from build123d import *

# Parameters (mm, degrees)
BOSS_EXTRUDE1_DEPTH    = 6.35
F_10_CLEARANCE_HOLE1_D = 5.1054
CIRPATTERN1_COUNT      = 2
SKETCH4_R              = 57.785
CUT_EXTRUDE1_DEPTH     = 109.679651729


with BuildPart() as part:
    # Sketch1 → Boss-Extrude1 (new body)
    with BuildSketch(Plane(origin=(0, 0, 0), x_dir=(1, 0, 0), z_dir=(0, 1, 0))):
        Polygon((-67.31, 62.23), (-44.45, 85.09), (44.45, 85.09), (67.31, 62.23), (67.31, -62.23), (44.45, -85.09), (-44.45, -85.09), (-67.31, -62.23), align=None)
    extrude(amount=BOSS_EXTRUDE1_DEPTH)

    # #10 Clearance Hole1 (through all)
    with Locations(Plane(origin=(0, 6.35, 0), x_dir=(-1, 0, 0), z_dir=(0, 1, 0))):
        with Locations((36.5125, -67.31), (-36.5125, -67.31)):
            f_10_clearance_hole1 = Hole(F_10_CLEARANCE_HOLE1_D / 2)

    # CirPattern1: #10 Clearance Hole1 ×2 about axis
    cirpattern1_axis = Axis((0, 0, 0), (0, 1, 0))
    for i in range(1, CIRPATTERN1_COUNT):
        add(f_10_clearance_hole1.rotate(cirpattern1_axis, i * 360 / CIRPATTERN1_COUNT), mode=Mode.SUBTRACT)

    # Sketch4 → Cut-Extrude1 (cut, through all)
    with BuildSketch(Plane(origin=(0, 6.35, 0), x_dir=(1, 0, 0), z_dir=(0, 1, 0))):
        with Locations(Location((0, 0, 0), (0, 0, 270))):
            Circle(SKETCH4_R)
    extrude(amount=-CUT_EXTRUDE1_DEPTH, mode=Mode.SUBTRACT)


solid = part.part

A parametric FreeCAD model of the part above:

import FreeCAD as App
import Part
import Sketcher
from FreeCAD import Vector
Q = App.Units.Quantity

doc = App.newDocument("Part")
body = doc.addObject("PartDesign::Body", "Body")

# Sketch on XZ plane
sketch1 = body.newObject("Sketcher::SketchObject", "Sketch")
sketch1.AttachmentSupport = (doc.getObject("XZ_Plane"), [""])
sketch1.MapMode = "FlatFace"
sketch1.addGeometry([
    Part.LineSegment(Vector(-44, -85, 0), Vector(-67, -62, 0)),  # 0
    Part.LineSegment(Vector(-67, -62, 0), Vector(-67, 62, 0)),  # 1
    Part.LineSegment(Vector(-67, 62, 0), Vector(-44, 85, 0)),  # 2
    Part.LineSegment(Vector(-44, 85, 0), Vector(44, 85, 0)),  # 3
    Part.LineSegment(Vector(44, 85, 0), Vector(67, 62, 0)),  # 4
    Part.LineSegment(Vector(67, 62, 0), Vector(67, -62, 0)),  # 5
    Part.LineSegment(Vector(67, -62, 0), Vector(44, -85, 0)),  # 6
    Part.LineSegment(Vector(44, -85, 0), Vector(-44, -85, 0)),  # 7
], False)
sketch1.addConstraint([
    Sketcher.Constraint("Coincident", 0, 2, 1, 1),
    Sketcher.Constraint("Coincident", 1, 2, 2, 1),
    Sketcher.Constraint("Coincident", 2, 2, 3, 1),
    Sketcher.Constraint("Coincident", 3, 2, 4, 1),
    Sketcher.Constraint("Coincident", 4, 2, 5, 1),
    Sketcher.Constraint("Coincident", 5, 2, 6, 1),
    Sketcher.Constraint("Coincident", 6, 2, 7, 1),
    Sketcher.Constraint("Coincident", 7, 2, 0, 1),
    Sketcher.Constraint("Vertical", 1),
    Sketcher.Constraint("Horizontal", 3),
    Sketcher.Constraint("Vertical", 5),
    Sketcher.Constraint("Horizontal", 7),
    Sketcher.Constraint("Symmetric", 0, 2, 4, 2, -1, 1),
    Sketcher.Constraint("Symmetric", 2, 2, 6, 2, -1, 1),
    Sketcher.Constraint("Perpendicular", 0, 2),
    Sketcher.Constraint("Perpendicular", 2, 4),
    Sketcher.Constraint("Perpendicular", 4, 6),
    Sketcher.Constraint("Horizontal", 1, 2, 4, 2),
    Sketcher.Constraint("Vertical", 3, 2, 6, 2),
    Sketcher.Constraint("DistanceX", 3, 1, 3, 2, Q("3.5 in")),
    Sketcher.Constraint("DistanceY", 1, 1, 1, 2, Q("4.9 in")),
    Sketcher.Constraint("DistanceX", 1, 2, 2, 2, Q("0.9 in")),
])
pad1 = body.newObject("PartDesign::Pad", "Pad")
pad1.Profile = sketch1
pad1.Length = Q("0.25 in")
pad1.Reversed = True

# Sketch on XZ plane
sketch2 = body.newObject("Sketcher::SketchObject", "Sketch001")
sketch2.AttachmentSupport = (doc.getObject("XZ_Plane"), [""])
sketch2.MapMode = "FlatFace"
sketch2.AttachmentOffset = App.Placement(Vector(0, 0, -0.25 * 25.4), App.Rotation())
sketch2.addGeometry([
    Part.Circle(Vector(-36.5, -67.3, 0), Vector(0, 0, 1), 2.6),
    Part.Circle(Vector(36.5, -67.3, 0), Vector(0, 0, 1), 2.6),
], False)
sketch2.addConstraint([
    Sketcher.Constraint("Equal", 0, 1),
    Sketcher.Constraint("Symmetric", 0, 3, 1, 3, -2),
    Sketcher.Constraint("Diameter", 0, Q("0.201 in")),
    Sketcher.Constraint("DistanceY", 0, 3, -1, 1, Q("2.65 in")),
    Sketcher.Constraint("DistanceX", 0, 3, -1, 1, Q("1.4375 in")),
])
doc.recompute()
hole = body.newObject("PartDesign::Hole", "Hole")
hole.Profile = sketch2
hole.ThreadType = "None"
hole.Diameter = Q("0.201 in")
hole.DepthType = "ThroughAll"
hole.Reversed = True
doc.recompute()

polarpattern = body.newObject("PartDesign::PolarPattern", "PolarPattern")
polarpattern.Originals = [hole]
polarpattern.Axis = (doc.getObject("Y_Axis"), [""])
polarpattern.Angle = 360
polarpattern.Occurrences = 2
body.Tip = polarpattern

# Sketch on XZ plane
sketch3 = body.newObject("Sketcher::SketchObject", "Sketch002")
sketch3.AttachmentSupport = (doc.getObject("XZ_Plane"), [""])
sketch3.MapMode = "FlatFace"
sketch3.AttachmentOffset = App.Placement(Vector(0, 0, -0.25 * 25.4), App.Rotation())
sketch3.addGeometry(Part.Circle(Vector(0, 0, 0), Vector(0, 0, 1), 58), False)
sketch3.addConstraint([
    Sketcher.Constraint("Coincident", 0, 3, -1, 1),
    Sketcher.Constraint("Diameter", 0, Q("4.55 in")),
])
pocket1 = body.newObject("PartDesign::Pocket", "Pocket")
pocket1.Profile = sketch3
pocket1.Type = "ThroughAll"
pocket1.Reversed = True

doc.recompute()
